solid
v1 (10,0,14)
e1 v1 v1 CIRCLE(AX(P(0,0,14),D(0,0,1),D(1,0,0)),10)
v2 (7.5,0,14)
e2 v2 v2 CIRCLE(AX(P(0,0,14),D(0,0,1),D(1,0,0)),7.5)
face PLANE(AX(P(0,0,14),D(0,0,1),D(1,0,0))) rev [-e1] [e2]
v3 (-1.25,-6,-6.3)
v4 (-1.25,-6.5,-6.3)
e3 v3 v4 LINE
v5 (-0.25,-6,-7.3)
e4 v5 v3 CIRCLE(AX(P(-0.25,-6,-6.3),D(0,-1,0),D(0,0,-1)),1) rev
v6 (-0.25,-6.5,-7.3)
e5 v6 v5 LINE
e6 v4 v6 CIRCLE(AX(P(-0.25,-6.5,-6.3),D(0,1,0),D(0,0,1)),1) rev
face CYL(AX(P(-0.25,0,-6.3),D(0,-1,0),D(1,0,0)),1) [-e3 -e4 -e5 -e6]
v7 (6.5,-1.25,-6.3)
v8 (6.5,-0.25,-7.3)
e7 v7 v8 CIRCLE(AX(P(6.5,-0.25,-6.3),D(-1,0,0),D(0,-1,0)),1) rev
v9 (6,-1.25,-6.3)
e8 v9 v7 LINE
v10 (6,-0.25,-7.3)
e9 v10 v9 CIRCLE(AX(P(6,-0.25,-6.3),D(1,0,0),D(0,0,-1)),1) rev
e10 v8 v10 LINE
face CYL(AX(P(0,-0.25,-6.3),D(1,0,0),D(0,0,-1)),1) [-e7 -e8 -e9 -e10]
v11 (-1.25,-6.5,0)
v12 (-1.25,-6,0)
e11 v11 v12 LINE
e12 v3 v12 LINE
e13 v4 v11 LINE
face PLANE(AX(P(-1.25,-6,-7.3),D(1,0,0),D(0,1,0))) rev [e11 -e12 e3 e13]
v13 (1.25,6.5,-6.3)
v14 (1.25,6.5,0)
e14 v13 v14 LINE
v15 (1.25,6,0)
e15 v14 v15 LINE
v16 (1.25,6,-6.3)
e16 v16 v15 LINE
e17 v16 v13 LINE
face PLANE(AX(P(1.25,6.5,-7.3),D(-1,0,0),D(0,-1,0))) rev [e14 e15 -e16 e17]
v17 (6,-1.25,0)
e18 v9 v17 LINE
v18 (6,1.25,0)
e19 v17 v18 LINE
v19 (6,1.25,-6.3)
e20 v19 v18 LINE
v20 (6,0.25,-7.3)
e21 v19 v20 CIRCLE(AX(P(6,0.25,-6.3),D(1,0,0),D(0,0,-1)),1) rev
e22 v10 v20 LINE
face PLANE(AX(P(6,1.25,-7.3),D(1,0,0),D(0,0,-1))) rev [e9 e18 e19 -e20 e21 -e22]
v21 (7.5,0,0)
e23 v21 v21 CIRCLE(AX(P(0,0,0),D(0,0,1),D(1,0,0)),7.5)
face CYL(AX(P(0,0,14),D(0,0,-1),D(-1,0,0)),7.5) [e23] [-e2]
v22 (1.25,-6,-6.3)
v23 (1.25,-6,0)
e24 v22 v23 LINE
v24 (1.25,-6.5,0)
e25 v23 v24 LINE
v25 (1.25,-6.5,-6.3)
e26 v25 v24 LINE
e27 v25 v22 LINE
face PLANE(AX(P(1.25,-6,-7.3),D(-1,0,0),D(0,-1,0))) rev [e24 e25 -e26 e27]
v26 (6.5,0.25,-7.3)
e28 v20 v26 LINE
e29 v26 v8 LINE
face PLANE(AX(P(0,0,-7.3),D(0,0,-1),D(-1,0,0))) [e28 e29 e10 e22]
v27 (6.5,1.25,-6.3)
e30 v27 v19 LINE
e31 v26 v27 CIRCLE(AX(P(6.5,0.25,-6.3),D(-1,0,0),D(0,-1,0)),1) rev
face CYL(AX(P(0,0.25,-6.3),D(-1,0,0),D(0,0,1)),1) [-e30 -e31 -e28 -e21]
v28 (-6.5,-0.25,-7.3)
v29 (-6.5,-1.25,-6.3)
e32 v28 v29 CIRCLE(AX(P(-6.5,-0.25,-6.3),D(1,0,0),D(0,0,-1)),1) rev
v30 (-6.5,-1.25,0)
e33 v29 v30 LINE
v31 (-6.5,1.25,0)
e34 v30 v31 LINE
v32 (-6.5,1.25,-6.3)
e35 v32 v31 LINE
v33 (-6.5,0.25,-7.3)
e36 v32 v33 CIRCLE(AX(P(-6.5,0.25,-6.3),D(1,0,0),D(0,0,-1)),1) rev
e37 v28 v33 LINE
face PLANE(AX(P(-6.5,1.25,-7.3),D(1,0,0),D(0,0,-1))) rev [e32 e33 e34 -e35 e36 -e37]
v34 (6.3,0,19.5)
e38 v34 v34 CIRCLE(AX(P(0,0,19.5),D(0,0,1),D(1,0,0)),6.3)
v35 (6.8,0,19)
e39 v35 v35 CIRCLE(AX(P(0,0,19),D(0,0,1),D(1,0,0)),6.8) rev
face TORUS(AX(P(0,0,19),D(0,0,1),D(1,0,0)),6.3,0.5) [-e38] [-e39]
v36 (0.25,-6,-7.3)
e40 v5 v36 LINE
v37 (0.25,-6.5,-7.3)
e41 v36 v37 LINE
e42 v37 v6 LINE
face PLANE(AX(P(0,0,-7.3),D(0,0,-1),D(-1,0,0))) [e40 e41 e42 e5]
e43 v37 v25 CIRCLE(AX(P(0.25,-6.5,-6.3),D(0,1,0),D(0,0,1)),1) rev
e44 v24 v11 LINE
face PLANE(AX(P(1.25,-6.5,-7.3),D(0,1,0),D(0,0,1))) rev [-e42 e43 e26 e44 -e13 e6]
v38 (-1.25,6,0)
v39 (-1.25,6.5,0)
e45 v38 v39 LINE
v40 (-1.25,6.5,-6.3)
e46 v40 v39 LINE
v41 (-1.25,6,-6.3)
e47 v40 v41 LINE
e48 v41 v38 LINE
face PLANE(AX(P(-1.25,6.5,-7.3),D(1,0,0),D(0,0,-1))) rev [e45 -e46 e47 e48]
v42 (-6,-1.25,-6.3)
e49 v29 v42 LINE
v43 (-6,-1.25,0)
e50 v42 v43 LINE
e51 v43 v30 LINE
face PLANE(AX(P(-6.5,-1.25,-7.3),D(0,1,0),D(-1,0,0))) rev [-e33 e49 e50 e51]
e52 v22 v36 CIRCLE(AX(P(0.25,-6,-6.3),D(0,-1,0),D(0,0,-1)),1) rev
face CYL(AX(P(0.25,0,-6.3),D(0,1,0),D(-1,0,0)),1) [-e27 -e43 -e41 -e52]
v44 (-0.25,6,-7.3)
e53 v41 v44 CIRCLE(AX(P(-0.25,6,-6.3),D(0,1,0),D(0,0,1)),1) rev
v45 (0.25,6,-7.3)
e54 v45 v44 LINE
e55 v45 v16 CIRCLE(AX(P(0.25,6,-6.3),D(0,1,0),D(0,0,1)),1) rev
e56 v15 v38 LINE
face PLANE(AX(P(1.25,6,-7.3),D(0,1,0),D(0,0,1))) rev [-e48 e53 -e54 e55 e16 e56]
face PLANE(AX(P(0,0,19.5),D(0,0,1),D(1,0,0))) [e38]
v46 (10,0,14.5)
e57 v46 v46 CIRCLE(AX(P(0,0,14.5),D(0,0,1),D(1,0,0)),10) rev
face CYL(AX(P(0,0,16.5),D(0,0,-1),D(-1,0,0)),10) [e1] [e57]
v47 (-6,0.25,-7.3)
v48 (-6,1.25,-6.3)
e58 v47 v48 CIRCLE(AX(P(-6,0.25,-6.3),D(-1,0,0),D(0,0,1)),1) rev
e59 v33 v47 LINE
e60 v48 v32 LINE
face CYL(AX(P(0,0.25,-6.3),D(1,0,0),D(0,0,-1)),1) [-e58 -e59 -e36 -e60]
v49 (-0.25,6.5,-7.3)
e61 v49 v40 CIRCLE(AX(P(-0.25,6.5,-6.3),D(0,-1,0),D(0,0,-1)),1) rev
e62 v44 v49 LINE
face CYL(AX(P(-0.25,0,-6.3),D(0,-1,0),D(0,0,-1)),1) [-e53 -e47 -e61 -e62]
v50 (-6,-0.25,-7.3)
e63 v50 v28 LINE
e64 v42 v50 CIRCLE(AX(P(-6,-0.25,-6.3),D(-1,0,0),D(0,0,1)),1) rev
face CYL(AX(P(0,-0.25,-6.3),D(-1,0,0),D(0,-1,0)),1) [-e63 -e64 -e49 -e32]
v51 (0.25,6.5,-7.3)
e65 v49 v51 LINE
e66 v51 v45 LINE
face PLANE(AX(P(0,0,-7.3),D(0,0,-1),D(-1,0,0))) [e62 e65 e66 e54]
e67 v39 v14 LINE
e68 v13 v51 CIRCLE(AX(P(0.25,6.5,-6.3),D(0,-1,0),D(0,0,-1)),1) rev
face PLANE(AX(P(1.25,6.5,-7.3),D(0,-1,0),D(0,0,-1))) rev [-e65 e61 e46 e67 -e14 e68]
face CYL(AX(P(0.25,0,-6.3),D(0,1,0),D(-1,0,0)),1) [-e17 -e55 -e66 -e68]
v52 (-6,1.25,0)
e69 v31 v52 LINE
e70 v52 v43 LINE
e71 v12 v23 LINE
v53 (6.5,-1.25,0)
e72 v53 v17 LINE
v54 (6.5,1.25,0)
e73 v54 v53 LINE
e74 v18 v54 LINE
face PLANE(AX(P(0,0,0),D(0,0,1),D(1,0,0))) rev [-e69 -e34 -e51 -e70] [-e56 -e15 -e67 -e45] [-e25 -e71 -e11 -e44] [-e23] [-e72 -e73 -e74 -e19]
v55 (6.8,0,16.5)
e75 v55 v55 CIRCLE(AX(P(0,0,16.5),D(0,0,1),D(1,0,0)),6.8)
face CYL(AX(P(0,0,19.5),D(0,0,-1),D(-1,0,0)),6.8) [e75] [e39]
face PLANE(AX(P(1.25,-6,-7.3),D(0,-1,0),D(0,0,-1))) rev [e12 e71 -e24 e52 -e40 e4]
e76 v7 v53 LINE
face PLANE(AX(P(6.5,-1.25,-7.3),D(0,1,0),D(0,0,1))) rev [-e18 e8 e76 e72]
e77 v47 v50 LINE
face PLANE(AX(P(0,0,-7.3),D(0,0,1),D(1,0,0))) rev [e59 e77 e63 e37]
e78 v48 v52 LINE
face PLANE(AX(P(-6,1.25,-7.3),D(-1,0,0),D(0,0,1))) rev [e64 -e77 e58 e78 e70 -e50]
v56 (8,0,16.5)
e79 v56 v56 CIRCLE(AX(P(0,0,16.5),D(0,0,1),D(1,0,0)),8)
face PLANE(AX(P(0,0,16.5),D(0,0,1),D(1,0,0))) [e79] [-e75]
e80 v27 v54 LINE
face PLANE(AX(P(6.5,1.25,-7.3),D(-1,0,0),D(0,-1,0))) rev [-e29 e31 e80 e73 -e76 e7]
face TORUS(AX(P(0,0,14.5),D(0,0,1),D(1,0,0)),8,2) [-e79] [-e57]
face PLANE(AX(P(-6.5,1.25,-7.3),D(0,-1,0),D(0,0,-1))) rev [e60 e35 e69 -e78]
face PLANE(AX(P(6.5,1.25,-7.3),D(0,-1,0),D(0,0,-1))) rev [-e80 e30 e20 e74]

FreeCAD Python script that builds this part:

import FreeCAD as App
import Part
import Sketcher
from FreeCAD import Vector


def edges_at(feature, points):
    """Names of the edges that pass closest to the given points."""
    edges = feature.Shape.Edges
    near = lambda p: min(range(len(edges)), key=lambda i: edges[i].distToShape(Part.Vertex(*p))[0])
    return sorted({f"Edge{near(p) + 1}" for p in points})


def add_polygon(sketch, points):
    """Adds a closed chain of lines whose ends are joined by coincident constraints."""
    first, n = sketch.GeometryCount, len(points)
    for a, b in zip(points, points[1:] + points[:1]):
        sketch.addGeometry(Part.LineSegment(App.Vector(*a, 0), App.Vector(*b, 0)), False)
    for i in range(n):
        sketch.addConstraint(Sketcher.Constraint("Coincident", first + i, 2, first + (i + 1) % n, 1))

doc = App.newDocument("Part")
body = doc.addObject("PartDesign::Body", "Body")

sketch1 = doc.addObject("Sketcher::SketchObject", "Sketch")
body.addObject(sketch1)
sketch1.AttachmentSupport = (doc.XY_Plane, [""])
sketch1.MapMode = "FlatFace"
sketch1.addGeometry(Part.Circle(Vector(0, 0, 0), Vector(0, 0, 1), 8), False)
sketch1.addConstraint(Sketcher.Constraint("Coincident", 0, 3, -1, 1))
sketch1.addConstraint(Sketcher.Constraint("Diameter", 0, 15.0))
pad1 = doc.addObject("PartDesign::Pad", "Pad")
body.addObject(pad1)
pad1.Profile = sketch1
pad1.Length = 14

sketch2 = doc.addObject("Sketcher::SketchObject", "Sketch001")
body.addObject(sketch2)
sketch2.AttachmentSupport = (doc.XY_Plane, [""])
sketch2.MapMode = "FlatFace"
sketch2.AttachmentOffset = App.Placement(Vector(0, 0, 14), App.Rotation())
sketch2.addGeometry(Part.Circle(Vector(0, 0, 0), Vector(0, 0, 1), 10), False)
sketch2.addConstraint(Sketcher.Constraint("Coincident", 0, 3, -1, 1))
sketch2.addConstraint(Sketcher.Constraint("Diameter", 0, 20.0))
pad2 = doc.addObject("PartDesign::Pad", "Pad001")
body.addObject(pad2)
pad2.Profile = sketch2
pad2.Length = 2.5

sketch3 = doc.addObject("Sketcher::SketchObject", "Sketch002")
body.addObject(sketch3)
sketch3.AttachmentSupport = (doc.XY_Plane, [""])
sketch3.MapMode = "FlatFace"
sketch3.AttachmentOffset = App.Placement(Vector(0, 0, 16.5), App.Rotation())
sketch3.addGeometry(Part.Circle(Vector(0, 0, 0), Vector(0, 0, 1), 7), False)
sketch3.addConstraint(Sketcher.Constraint("Coincident", 0, 3, -1, 1))
sketch3.addConstraint(Sketcher.Constraint("Diameter", 0, 13.6))
pad3 = doc.addObject("PartDesign::Pad", "Pad002")
body.addObject(pad3)
pad3.Profile = sketch3
pad3.Length = 3

sketch4 = doc.addObject("Sketcher::SketchObject", "Sketch003")
body.addObject(sketch4)
sketch4.AttachmentSupport = (doc.XY_Plane, [""])
sketch4.MapMode = "FlatFace"
add_polygon(sketch4, [(6.5, 1.2), (6.5, -1.2), (6, -1.2), (6, 1.2)])
add_polygon(sketch4, [(-6, 1.2), (-6, -1.2), (-6.5, -1.2), (-6.5, 1.2)])
add_polygon(sketch4, [(1.2, 6.5), (1.2, 6), (-1.2, 6), (-1.2, 6.5)])
add_polygon(sketch4, [(1.2, -6), (1.2, -6.5), (-1.2, -6.5), (-1.2, -6)])
sketch4.addConstraint(Sketcher.Constraint("Vertical", 0))
sketch4.addConstraint(Sketcher.Constraint("Horizontal", 1))
sketch4.addConstraint(Sketcher.Constraint("Vertical", 2))
sketch4.addConstraint(Sketcher.Constraint("Horizontal", 3))
sketch4.addConstraint(Sketcher.Constraint("Vertical", 4))
sketch4.addConstraint(Sketcher.Constraint("Horizontal", 5))
sketch4.addConstraint(Sketcher.Constraint("Vertical", 6))
sketch4.addConstraint(Sketcher.Constraint("Horizontal", 7))
sketch4.addConstraint(Sketcher.Constraint("Vertical", 8))
sketch4.addConstraint(Sketcher.Constraint("Horizontal", 9))
sketch4.addConstraint(Sketcher.Constraint("Vertical", 10))
sketch4.addConstraint(Sketcher.Constraint("Horizontal", 11))
sketch4.addConstraint(Sketcher.Constraint("Vertical", 12))
sketch4.addConstraint(Sketcher.Constraint("Horizontal", 13))
sketch4.addConstraint(Sketcher.Constraint("Vertical", 14))
sketch4.addConstraint(Sketcher.Constraint("Horizontal", 15))
sketch4.addConstraint(Sketcher.Constraint("Symmetric", 2, 2, 4, 2, -1, 1))
sketch4.addConstraint(Sketcher.Constraint("Symmetric", 0, 2, 6, 2, -1, 1))
sketch4.addConstraint(Sketcher.Constraint("Symmetric", 10, 2, 12, 2, -1, 1))
sketch4.addConstraint(Sketcher.Constraint("Symmetric", 8, 2, 14, 2, -1, 1))
sketch4.addConstraint(Sketcher.Constraint("Horizontal", 1, 2, 4, 2))
sketch4.addConstraint(Sketcher.Constraint("Vertical", 11, 2, 12, 2))
sketch4.addConstraint(Sketcher.Constraint("Equal", 15, 0))
sketch4.addConstraint(Sketcher.Constraint("Equal", 7, 8))
sketch4.addConstraint(Sketcher.Constraint("DistanceX", 1, 2, 1, 1, 0.5))
sketch4.addConstraint(Sketcher.Constraint("DistanceX", 9, 2, 9, 1, 2.5))
sketch4.addConstraint(Sketcher.Constraint("DistanceX", -1, 1, 1, 2, 6.0))
sketch4.addConstraint(Sketcher.Constraint("DistanceY", -1, 1, 8, 2, 6.0))
pad4 = doc.addObject("PartDesign::Pad", "Pad003")
body.addObject(pad4)
pad4.Profile = sketch4
pad4.Length = 7.3
pad4.Reversed = True
doc.recompute()

fillet = doc.addObject("PartDesign::Fillet", "Fillet")
body.addObject(fillet)
fillet.Base = (pad4, edges_at(pad4, [
    (6.25, 1.25, -7.3),
    (6.25, -1.25, -7.3),
    (-6.25, -1.25, -7.3),
    (-6.25, 1.25, -7.3),
    (-1.25, 6.25, -7.3),
    (1.25, 6.25, -7.3),
    (-1.25, -6.25, -7.3),
    (1.25, -6.25, -7.3),
]))
fillet.Radius = 1
doc.recompute()

fillet2 = doc.addObject("PartDesign::Fillet", "Fillet001")
body.addObject(fillet2)
fillet2.Base = (fillet, edges_at(fillet, [(-6.8, 0, 19.5)]))
fillet2.Radius = 0.5
doc.recompute()

fillet3 = doc.addObject("PartDesign::Fillet", "Fillet002")
body.addObject(fillet3)
fillet3.Base = (fillet2, edges_at(fillet2, [(-10, 0, 16.5)]))
fillet3.Radius = 2

doc.recompute()
